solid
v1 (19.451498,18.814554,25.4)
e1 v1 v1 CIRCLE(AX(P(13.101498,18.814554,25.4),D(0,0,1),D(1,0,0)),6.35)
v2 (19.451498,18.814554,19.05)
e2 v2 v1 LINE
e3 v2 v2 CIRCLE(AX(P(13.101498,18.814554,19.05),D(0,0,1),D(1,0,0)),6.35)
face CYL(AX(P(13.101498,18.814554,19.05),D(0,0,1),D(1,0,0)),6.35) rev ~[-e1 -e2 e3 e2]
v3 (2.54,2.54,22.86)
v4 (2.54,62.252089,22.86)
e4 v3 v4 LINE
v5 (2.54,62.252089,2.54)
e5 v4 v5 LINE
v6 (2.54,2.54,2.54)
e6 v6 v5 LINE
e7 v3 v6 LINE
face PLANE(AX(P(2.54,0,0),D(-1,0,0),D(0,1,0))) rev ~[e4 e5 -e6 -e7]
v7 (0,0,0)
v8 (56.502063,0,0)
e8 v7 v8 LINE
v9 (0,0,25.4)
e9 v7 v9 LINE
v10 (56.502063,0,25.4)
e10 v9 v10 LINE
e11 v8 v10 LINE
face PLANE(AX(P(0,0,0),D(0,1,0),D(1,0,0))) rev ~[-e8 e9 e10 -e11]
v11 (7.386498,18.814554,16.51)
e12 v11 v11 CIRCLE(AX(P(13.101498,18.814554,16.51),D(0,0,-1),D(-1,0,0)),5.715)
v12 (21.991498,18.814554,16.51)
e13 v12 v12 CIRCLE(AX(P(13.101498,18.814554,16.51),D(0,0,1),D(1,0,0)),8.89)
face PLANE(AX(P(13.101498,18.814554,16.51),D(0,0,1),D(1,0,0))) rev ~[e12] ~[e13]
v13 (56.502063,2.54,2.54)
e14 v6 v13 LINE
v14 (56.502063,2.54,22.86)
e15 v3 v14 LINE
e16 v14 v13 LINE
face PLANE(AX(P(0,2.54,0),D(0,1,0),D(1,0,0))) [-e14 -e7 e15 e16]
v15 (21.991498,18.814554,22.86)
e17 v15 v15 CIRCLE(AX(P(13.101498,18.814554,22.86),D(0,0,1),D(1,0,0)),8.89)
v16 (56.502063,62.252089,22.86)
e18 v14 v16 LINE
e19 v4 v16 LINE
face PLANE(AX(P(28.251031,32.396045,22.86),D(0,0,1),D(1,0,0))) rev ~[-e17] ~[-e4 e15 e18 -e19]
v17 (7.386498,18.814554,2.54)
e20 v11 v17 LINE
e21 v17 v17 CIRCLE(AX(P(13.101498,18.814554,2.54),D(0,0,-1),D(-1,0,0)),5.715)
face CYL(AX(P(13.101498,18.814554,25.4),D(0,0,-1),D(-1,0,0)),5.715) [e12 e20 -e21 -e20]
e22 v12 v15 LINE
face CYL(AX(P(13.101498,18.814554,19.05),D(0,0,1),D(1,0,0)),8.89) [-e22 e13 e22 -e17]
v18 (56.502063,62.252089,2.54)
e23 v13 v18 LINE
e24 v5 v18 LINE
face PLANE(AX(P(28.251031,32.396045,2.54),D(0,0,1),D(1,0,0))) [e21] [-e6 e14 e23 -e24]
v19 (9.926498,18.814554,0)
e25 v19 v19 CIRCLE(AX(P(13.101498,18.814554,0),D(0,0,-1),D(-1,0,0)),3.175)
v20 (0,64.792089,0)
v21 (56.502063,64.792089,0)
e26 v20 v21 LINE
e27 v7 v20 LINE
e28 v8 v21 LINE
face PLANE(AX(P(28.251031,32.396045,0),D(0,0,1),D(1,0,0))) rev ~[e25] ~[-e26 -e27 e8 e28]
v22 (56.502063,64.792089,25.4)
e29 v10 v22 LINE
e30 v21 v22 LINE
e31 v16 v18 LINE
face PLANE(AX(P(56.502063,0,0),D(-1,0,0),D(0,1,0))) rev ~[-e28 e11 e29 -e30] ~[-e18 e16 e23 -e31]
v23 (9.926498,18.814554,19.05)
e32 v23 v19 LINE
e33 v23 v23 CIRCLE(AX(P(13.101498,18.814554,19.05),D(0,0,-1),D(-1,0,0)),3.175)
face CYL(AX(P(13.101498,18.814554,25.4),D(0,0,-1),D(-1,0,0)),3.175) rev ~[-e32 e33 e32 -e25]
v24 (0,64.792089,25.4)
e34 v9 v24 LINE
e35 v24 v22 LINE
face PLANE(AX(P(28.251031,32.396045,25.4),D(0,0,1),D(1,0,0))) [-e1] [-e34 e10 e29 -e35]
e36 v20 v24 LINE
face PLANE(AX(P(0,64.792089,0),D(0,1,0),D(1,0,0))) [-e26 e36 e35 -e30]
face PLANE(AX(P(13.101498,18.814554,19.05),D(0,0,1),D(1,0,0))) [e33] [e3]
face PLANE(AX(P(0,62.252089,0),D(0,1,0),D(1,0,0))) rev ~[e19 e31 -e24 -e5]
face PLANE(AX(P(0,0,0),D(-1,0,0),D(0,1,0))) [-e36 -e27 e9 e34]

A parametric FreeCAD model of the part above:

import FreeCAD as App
import Part
import Sketcher

V = App.Vector
Q = App.Units.Quantity


def faces_at(feature, points):
    """Names of the faces that lie closest to the given points."""
    faces = feature.Shape.Faces
    near = lambda p: min(range(len(faces)), key=lambda i: faces[i].distToShape(Part.Vertex(*p))[0])
    return sorted({f"Face{near(p) + 1}" for p in points})

doc = App.newDocument("Part")
body = doc.addObject("PartDesign::Body", "Body")

# Sketch on XY plane
sketch1 = body.newObject("Sketcher::SketchObject", "Sketch")
sketch1.AttachmentSupport = (doc.getObject("XY_Plane"), [""])
sketch1.MapMode = "FlatFace"
sketch1.addGeometry(Part.LineSegment(V(0, 64.792089, 0), V(0, 0, 0)), False)
sketch1.addGeometry(Part.LineSegment(V(0, 0, 0), V(56.502063, 0, 0)), False)
sketch1.addGeometry(Part.LineSegment(V(56.502063, 0, 0), V(56.502063, 64.792089, 0)), False)
sketch1.addGeometry(Part.LineSegment(V(56.502063, 64.792089, 0), V(0, 64.792089, 0)), False)
sketch1.addConstraint(Sketcher.Constraint("Coincident", 0, 2, 1, 1))
sketch1.addConstraint(Sketcher.Constraint("Coincident", 1, 2, 2, 1))
sketch1.addConstraint(Sketcher.Constraint("Coincident", 2, 2, 3, 1))
sketch1.addConstraint(Sketcher.Constraint("Coincident", 3, 2, 0, 1))
sketch1.addConstraint(Sketcher.Constraint("Vertical", 0))
sketch1.addConstraint(Sketcher.Constraint("Horizontal", 1))
sketch1.addConstraint(Sketcher.Constraint("Vertical", 2))
sketch1.addConstraint(Sketcher.Constraint("Horizontal", 3))
sketch1.addConstraint(Sketcher.Constraint("Coincident", 0, 2, -1, 1))
sketch1.addConstraint(Sketcher.Constraint("DistanceY", 0, 2, 0, 1, 64.792089))
sketch1.addConstraint(Sketcher.Constraint("DistanceX", 1, 1, 1, 2, 56.502063))
pad1 = body.newObject("PartDesign::Pad", "Pad")
pad1.Profile = sketch1
pad1.Length = Q("1 in")

# Sketch on XY plane
sketch2 = body.newObject("Sketcher::SketchObject", "Sketch001")
sketch2.AttachmentSupport = (doc.getObject("XY_Plane"), [""])
sketch2.MapMode = "FlatFace"
sketch2.AttachmentOffset = App.Placement(V(0, 0, 1 * 25.4), App.Rotation())
sketch2.addGeometry(Part.Circle(V(13.101498, 18.814554, 0), V(0, 0, 1), 3.175), False)
sketch2.addConstraint(Sketcher.Constraint("Diameter", 0, Q("0.25 in")))
sketch2.addConstraint(Sketcher.Constraint("DistanceX", -1, 1, 0, 3, 13.101498))
sketch2.addConstraint(Sketcher.Constraint("DistanceY", -1, 1, 0, 3, 18.814554))
doc.recompute()
hole = body.newObject("PartDesign::Hole", "Hole")
hole.Profile = sketch2
hole.ThreadType = "None"
hole.Diameter = Q("0.25 in")
hole.DepthType = "ThroughAll"
hole.HoleCutType = "Counterbore"
hole.HoleCutDiameter = Q("0.5 in")
hole.HoleCutDepth = Q("0.25 in")
doc.recompute()

thickness = body.newObject("PartDesign::Thickness", "Thickness")
thickness.Base = (hole, faces_at(hole, [(56.502, 32.396, 12.7)]))
thickness.Value = Q("0.1 in")
thickness.Reversed = True
thickness.Join = "Intersection"

doc.recompute()
